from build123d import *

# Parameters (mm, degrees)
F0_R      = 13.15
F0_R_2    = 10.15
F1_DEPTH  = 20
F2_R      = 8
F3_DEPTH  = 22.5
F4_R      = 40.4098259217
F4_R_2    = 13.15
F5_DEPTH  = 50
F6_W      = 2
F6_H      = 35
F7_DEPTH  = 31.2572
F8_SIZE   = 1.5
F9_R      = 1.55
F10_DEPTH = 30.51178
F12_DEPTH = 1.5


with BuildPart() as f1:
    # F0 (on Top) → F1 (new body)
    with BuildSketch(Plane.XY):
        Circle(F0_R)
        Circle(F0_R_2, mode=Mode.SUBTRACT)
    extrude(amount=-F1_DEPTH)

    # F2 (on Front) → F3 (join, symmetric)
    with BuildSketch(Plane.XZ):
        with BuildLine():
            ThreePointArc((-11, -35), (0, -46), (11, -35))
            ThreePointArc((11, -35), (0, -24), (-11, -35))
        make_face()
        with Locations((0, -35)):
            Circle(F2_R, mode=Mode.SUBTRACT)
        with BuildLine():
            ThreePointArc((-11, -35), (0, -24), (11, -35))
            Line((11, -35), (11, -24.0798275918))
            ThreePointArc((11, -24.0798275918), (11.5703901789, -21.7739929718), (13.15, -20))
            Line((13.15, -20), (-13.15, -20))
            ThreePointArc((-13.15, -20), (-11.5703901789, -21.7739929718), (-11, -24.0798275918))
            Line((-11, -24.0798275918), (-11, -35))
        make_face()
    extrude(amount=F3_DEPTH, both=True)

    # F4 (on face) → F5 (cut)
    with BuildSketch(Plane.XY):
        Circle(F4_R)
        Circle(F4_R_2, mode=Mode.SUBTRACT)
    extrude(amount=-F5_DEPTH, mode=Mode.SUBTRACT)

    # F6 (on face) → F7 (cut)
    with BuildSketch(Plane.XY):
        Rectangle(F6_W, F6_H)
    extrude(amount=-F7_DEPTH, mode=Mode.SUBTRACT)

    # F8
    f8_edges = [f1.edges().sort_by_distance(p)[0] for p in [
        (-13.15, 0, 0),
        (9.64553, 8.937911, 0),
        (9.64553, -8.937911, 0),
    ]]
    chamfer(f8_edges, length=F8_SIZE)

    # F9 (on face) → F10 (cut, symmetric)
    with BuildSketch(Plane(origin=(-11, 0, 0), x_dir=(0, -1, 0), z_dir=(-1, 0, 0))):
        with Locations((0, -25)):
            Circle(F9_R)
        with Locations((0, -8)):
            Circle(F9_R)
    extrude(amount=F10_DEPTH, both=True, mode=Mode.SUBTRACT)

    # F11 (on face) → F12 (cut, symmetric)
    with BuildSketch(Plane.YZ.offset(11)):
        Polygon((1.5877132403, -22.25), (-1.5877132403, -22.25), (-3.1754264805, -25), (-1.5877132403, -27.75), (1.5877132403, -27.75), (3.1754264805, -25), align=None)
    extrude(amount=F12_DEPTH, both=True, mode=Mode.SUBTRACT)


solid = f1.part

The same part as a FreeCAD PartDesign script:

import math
import FreeCAD as App
import Part
import Sketcher

V = App.Vector
Q = App.Units.Quantity


def edges_at(feature, points):
    """Names of the edges that pass closest to the given points."""
    edges = feature.Shape.Edges
    near = lambda p: min(range(len(edges)), key=lambda i: edges[i].distToShape(Part.Vertex(*p))[0])
    return sorted({f"Edge{near(p) + 1}" for p in points})

doc = App.newDocument("Part")
body = doc.addObject("PartDesign::Body", "Body")

# Sketch on XY plane
sketch1 = body.newObject("Sketcher::SketchObject", "Sketch")
sketch1.AttachmentSupport = (doc.getObject("XY_Plane"), [""])
sketch1.MapMode = "FlatFace"
sketch1.addGeometry([
    Part.Circle(V(0, 0, 0), V(0, 0, 1), 13),
    Part.Circle(V(0, 0, 0), V(0, 0, 1), 10),
], False)
sketch1.addConstraint([
    Sketcher.Constraint("Coincident", 0, 3, -1, 1),
    Sketcher.Constraint("Coincident", 1, 3, -1, 1),
    Sketcher.Constraint("Diameter", 0, 26.3),
    Sketcher.Constraint("Diameter", 1, 20.3),
])
pad1 = body.newObject("PartDesign::Pad", "Pad")
pad1.Profile = sketch1
pad1.Length = 20
pad1.Reversed = True

# Sketch on XZ plane
sketch2 = body.newObject("Sketcher::SketchObject", "Sketch001")
sketch2.AttachmentSupport = (doc.getObject("XZ_Plane"), [""])
sketch2.MapMode = "FlatFace"
sketch2.addGeometry([
    Part.ArcOfCircle(Part.Circle(V(0, -35, 0), V(0, 0, 1), 11), math.radians(180), math.radians(360)),  # 0
    Part.LineSegment(V(11, -35, 0), V(11, -24.1, 0)),  # 1
    Part.ArcOfCircle(Part.Circle(V(15.9, -24.1, 0), V(0, 0, 1), 4.9), math.radians(124), math.radians(180)),  # 2
    Part.LineSegment(V(13.2, -20, 0), V(-13.2, -20, 0)),  # 3
    Part.ArcOfCircle(Part.Circle(V(-15.9, -24.1, 0), V(0, 0, 1), 4.9), math.radians(0), math.radians(56)),  # 4
    Part.LineSegment(V(-11, -24.1, 0), V(-11, -35, 0)),  # 5
    Part.Circle(V(0, -35, 0), V(0, 0, 1), 8),  # 6
], False)
sketch2.addConstraint([
    Sketcher.Constraint("Tangent", 0, 2, 1, 1),
    Sketcher.Constraint("Tangent", 1, 2, 2, 2),
    Sketcher.Constraint("Coincident", 2, 1, 3, 1),
    Sketcher.Constraint("Coincident", 3, 2, 4, 2),
    Sketcher.Constraint("Tangent", 4, 1, 5, 1),
    Sketcher.Constraint("Tangent", 5, 2, 0, 1),
    Sketcher.Constraint("Vertical", 1),
    Sketcher.Constraint("Horizontal", 3),
    Sketcher.Constraint("Vertical", 5),
    Sketcher.Constraint("Coincident", 6, 3, 0, 3),
    Sketcher.Constraint("Equal", 2, 4),
    Sketcher.Constraint("Symmetric", 2, 3, 4, 3, -2),
    Sketcher.Constraint("Diameter", 6, 16.0),
    Sketcher.Constraint("Radius", 0, 11.0),
    Sketcher.Constraint("DistanceX", 3, 2, 3, 1, 26.3),
    Sketcher.Constraint("DistanceY", 0, 3, -1, 1, 35.0),
    Sketcher.Constraint("DistanceY", 2, 1, -1, 1, 20.0),
    Sketcher.Constraint("Radius", 2, 4.945929),
])
pad2 = body.newObject("PartDesign::Pad", "Pad001")
pad2.Profile = sketch2
pad2.Length = 45
pad2.Midplane = True

# Sketch on XY plane
sketch3 = body.newObject("Sketcher::SketchObject", "Sketch002")
sketch3.AttachmentSupport = (doc.getObject("XY_Plane"), [""])
sketch3.MapMode = "FlatFace"
sketch3.addGeometry([
    Part.Circle(V(0, 0, 0), V(0, 0, 1), 40),
    Part.Circle(V(0, 0, 0), V(0, 0, 1), 13),
], False)
sketch3.addConstraint([
    Sketcher.Constraint("Coincident", 0, 3, -1, 1),
    Sketcher.Constraint("Coincident", 1, 3, -1, 1),
    Sketcher.Constraint("Diameter", 1, 26.3),
    Sketcher.Constraint("Diameter", 0, 80.819652),
])
pocket1 = body.newObject("PartDesign::Pocket", "Pocket")
pocket1.Profile = sketch3
pocket1.Length = 50

# Sketch on XY plane
sketch4 = body.newObject("Sketcher::SketchObject", "Sketch003")
sketch4.AttachmentSupport = (doc.getObject("XY_Plane"), [""])
sketch4.MapMode = "FlatFace"
sketch4.addGeometry([
    Part.LineSegment(V(-1, 17.5, 0), V(-1, -17.5, 0)),
    Part.LineSegment(V(-1, -17.5, 0), V(1, -17.5, 0)),
    Part.LineSegment(V(1, -17.5, 0), V(1, 17.5, 0)),
    Part.LineSegment(V(1, 17.5, 0), V(-1, 17.5, 0)),
], False)
sketch4.addConstraint([
    Sketcher.Constraint("Coincident", 0, 2, 1, 1),
    Sketcher.Constraint("Coincident", 1, 2, 2, 1),
    Sketcher.Constraint("Coincident", 2, 2, 3, 1),
    Sketcher.Constraint("Coincident", 3, 2, 0, 1),
    Sketcher.Constraint("Vertical", 0),
    Sketcher.Constraint("Horizontal", 1),
    Sketcher.Constraint("Vertical", 2),
    Sketcher.Constraint("Horizontal", 3),
    Sketcher.Constraint("Symmetric", 0, 2, 2, 2, -1, 1),
    Sketcher.Constraint("DistanceX", 1, 1, 1, 2, 2.0),
    Sketcher.Constraint("DistanceY", 0, 2, 0, 1, 35.0),
])
pocket2 = body.newObject("PartDesign::Pocket", "Pocket001")
pocket2.Profile = sketch4
pocket2.Length = 31.2572
doc.recompute()

chamfer = body.newObject("PartDesign::Chamfer", "Chamfer")
chamfer.Base = (pocket2, edges_at(pocket2, [(-13.15, 0, 0), (9.646, 8.938, 0), (9.646, -8.938, 0)]))
chamfer.Size = 1.5

# Sketch on YZ plane
sketch5 = body.newObject("Sketcher::SketchObject", "Sketch004")
sketch5.AttachmentSupport = (doc.getObject("YZ_Plane"), [""])
sketch5.MapMode = "FlatFace"
sketch5.AttachmentOffset = App.Placement(V(0, 0, -11), App.Rotation())
sketch5.addGeometry([
    Part.Circle(V(0, -25, 0), V(0, 0, 1), 1.6),
    Part.Circle(V(0, -8, 0), V(0, 0, 1), 1.6),
], False)
sketch5.addConstraint([
    Sketcher.Constraint("Equal", 0, 1),
    Sketcher.Constraint("PointOnObject", 0, 3, -2),
    Sketcher.Constraint("PointOnObject", 1, 3, -2),
    Sketcher.Constraint("Diameter", 0, 3.1),
    Sketcher.Constraint("DistanceY", 0, 3, -1, 1, 25.0),
    Sketcher.Constraint("DistanceY", 1, 3, -1, 1, 8.0),
])
pocket3 = body.newObject("PartDesign::Pocket", "Pocket002")
pocket3.Profile = sketch5
pocket3.Length = 61.02356
pocket3.Midplane = True

# Sketch on YZ plane
sketch6 = body.newObject("Sketcher::SketchObject", "Sketch005")
sketch6.AttachmentSupport = (doc.getObject("YZ_Plane"), [""])
sketch6.MapMode = "FlatFace"
sketch6.AttachmentOffset = App.Placement(V(0, 0, 11), App.Rotation())
sketch6.addGeometry([
    Part.LineSegment(V(1.6, -22.2, 0), V(-1.6, -22.2, 0)),  # 0
    Part.LineSegment(V(-1.6, -22.2, 0), V(-3.2, -25, 0)),  # 1
    Part.LineSegment(V(-3.2, -25, 0), V(-1.6, -27.8, 0)),  # 2
    Part.LineSegment(V(-1.6, -27.8, 0), V(1.6, -27.8, 0)),  # 3
    Part.LineSegment(V(1.6, -27.8, 0), V(3.2, -25, 0)),  # 4
    Part.LineSegment(V(3.2, -25, 0), V(1.6, -22.2, 0)),  # 5
], False)
sketch6.addConstraint([
    Sketcher.Constraint("Coincident", 0, 2, 1, 1),
    Sketcher.Constraint("Coincident", 1, 2, 2, 1),
    Sketcher.Constraint("Coincident", 2, 2, 3, 1),
    Sketcher.Constraint("Coincident", 3, 2, 4, 1),
    Sketcher.Constraint("Coincident", 4, 2, 5, 1),
    Sketcher.Constraint("Coincident", 5, 2, 0, 1),
    Sketcher.Constraint("Horizontal", 0),
    Sketcher.Constraint("Horizontal", 3),
    Sketcher.Constraint("Symmetric", 1, 2, 4, 2, -2),
    Sketcher.Constraint("Parallel", 1, 4),
    Sketcher.Constraint("Parallel", 2, 5),
    Sketcher.Constraint("Vertical", 0, 2, 2, 2),
    Sketcher.Constraint("Vertical", 3, 2, 5, 2),
    Sketcher.Constraint("Angle", 1, Q("-120 deg")),
    Sketcher.Constraint("DistanceY", 1, 2, -1, 1, 25.0),
    Sketcher.Constraint("DistanceY", 2, 2, 0, 2, 5.5),
    Sketcher.Constraint("DistanceX", 0, 2, 0, 1, 3.175426),
])
pocket4 = body.newObject("PartDesign::Pocket", "Pocket003")
pocket4.Profile = sketch6
pocket4.Length = 3
pocket4.Midplane = True

doc.recompute()
